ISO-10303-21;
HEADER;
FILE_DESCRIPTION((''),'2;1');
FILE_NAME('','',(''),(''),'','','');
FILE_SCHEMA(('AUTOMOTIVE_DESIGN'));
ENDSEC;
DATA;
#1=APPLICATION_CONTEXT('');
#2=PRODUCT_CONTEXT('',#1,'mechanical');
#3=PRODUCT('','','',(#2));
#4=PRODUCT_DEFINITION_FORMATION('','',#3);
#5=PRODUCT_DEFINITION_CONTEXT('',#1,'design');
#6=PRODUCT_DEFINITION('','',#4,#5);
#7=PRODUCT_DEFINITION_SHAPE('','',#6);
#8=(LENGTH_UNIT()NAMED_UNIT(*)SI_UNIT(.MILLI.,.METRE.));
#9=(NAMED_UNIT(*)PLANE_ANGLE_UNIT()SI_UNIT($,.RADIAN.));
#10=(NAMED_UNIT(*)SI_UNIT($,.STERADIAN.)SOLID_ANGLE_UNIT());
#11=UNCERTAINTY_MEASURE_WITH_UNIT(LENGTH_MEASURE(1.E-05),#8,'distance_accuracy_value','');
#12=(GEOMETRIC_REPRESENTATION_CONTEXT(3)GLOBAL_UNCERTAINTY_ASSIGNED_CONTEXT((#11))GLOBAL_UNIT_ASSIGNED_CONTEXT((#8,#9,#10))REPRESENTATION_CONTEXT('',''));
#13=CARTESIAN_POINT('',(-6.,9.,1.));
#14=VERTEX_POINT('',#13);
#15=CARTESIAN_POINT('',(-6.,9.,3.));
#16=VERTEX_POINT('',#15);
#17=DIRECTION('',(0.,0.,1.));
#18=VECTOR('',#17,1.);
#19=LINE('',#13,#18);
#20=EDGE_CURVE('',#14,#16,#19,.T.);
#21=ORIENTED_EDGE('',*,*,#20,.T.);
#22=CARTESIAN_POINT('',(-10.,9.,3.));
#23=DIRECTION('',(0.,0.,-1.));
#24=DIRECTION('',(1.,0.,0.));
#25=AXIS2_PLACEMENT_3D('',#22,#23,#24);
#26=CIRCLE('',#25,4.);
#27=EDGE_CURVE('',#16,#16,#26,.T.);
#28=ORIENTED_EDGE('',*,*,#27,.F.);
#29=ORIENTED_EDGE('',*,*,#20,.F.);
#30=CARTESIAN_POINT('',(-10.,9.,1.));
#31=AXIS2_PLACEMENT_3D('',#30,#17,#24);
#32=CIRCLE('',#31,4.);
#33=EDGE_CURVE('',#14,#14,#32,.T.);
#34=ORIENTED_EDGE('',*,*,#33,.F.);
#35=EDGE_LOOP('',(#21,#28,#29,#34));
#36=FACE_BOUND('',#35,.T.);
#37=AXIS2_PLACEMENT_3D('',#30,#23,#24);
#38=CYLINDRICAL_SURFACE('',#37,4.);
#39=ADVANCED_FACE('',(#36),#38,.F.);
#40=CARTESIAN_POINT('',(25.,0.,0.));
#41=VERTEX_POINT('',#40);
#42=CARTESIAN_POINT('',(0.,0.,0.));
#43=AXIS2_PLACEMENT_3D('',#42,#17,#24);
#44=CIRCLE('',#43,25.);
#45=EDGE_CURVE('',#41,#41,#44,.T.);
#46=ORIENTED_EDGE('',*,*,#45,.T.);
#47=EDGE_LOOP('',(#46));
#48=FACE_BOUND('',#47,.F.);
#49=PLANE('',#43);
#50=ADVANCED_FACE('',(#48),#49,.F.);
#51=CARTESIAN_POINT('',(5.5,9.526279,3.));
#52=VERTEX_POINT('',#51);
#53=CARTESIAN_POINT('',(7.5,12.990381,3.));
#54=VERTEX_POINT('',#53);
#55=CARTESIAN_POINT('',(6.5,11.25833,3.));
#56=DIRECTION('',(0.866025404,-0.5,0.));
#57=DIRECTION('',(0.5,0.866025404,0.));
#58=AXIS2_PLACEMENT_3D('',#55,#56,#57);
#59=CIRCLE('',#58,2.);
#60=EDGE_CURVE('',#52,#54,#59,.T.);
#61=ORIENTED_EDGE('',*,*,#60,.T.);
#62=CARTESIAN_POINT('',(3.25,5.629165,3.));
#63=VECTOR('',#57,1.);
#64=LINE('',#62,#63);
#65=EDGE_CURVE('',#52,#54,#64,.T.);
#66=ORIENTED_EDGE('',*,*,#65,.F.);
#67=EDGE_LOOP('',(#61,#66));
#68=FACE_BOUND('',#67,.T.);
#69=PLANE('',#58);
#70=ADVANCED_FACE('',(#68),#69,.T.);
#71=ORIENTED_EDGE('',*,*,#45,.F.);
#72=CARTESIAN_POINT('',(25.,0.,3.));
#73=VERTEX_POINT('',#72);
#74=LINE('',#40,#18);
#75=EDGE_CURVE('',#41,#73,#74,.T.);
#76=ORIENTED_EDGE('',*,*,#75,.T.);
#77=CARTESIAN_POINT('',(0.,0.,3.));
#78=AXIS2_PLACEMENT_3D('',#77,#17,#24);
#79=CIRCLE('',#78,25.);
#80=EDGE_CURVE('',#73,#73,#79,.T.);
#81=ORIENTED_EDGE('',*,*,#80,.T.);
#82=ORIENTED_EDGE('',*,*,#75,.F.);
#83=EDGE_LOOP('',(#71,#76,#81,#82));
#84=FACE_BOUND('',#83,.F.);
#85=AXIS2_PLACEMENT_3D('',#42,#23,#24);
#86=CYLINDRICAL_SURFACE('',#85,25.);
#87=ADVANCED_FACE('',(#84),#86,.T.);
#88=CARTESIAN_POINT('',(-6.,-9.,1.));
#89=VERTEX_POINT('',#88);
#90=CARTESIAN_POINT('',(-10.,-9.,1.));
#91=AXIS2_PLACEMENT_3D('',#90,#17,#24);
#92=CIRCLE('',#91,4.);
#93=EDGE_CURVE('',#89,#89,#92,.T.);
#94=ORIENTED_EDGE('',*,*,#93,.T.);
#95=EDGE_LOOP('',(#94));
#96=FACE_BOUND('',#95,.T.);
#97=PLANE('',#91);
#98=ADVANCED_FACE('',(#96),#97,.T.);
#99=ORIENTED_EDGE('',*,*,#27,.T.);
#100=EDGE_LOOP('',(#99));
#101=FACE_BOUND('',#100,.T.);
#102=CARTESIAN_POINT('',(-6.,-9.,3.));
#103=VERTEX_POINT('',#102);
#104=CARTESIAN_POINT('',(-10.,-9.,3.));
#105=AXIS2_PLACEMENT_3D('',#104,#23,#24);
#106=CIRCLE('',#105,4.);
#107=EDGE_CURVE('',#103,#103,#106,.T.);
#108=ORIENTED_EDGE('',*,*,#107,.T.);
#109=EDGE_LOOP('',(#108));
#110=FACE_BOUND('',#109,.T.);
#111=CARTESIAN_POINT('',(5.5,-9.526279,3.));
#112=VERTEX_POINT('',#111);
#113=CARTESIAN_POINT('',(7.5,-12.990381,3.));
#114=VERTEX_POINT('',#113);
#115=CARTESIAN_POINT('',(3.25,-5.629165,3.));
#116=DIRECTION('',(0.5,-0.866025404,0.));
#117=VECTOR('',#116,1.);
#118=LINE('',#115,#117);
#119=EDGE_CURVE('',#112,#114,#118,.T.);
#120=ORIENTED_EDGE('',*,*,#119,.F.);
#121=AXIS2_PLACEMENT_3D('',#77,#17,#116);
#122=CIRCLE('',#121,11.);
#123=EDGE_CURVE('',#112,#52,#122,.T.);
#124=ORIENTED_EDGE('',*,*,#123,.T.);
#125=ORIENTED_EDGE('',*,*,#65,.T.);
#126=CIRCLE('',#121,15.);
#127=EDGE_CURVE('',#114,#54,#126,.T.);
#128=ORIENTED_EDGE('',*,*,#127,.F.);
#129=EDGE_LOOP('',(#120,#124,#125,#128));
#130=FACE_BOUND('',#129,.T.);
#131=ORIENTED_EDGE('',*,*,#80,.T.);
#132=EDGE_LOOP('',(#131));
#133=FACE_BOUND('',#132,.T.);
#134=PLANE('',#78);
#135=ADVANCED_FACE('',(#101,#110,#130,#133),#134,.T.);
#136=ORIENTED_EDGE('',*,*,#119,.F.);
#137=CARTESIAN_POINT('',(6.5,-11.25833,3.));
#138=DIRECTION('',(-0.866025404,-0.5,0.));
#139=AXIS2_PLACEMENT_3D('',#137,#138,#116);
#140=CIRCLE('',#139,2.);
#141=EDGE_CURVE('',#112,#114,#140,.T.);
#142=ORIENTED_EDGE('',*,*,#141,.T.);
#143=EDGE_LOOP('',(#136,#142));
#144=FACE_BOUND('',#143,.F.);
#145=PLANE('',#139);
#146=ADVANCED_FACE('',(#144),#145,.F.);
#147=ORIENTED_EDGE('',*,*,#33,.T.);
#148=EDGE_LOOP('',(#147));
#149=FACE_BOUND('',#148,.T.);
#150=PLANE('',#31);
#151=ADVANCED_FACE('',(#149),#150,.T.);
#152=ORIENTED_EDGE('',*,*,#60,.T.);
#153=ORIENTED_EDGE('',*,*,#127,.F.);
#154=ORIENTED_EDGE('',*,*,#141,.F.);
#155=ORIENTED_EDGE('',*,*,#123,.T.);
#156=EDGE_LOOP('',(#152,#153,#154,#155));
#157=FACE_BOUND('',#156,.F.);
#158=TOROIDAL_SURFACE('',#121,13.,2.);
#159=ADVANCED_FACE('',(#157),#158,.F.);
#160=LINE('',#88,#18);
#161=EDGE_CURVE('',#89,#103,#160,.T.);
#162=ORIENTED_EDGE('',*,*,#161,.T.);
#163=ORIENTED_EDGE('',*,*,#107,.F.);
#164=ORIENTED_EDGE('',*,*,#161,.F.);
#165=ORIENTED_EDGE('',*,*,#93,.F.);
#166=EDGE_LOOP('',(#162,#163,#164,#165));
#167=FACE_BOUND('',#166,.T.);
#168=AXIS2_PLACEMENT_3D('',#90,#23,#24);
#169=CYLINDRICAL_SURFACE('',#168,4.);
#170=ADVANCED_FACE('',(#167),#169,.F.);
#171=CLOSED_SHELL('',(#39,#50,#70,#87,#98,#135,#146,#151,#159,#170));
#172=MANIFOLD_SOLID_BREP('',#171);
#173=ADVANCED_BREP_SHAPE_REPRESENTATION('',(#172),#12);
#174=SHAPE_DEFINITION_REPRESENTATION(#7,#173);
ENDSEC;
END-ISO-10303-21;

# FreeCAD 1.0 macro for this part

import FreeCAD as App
import Part
import Sketcher
Q = App.Units.Quantity

doc = App.newDocument("Part")
body = doc.addObject("PartDesign::Body", "Body")

sketch1 = doc.addObject("Sketcher::SketchObject", "Sketch")
body.addObject(sketch1)
sketch1.AttachmentSupport = (doc.XY_Plane, [""])
sketch1.MapMode = "FlatFace"
sketch1.AttachmentOffset = App.Placement(App.Vector(0, 0, 1), App.Rotation())
sketch1.addGeometry(Part.Circle(App.Vector(-10, -9, 0), App.Vector(0, 0, 1), 4), False)
sketch1.addConstraint([
    Sketcher.Constraint("Diameter", 0, Q("8 mm")),
    Sketcher.Constraint("DistanceX", 0, 3, -1, 1, Q("10 mm")),
    Sketcher.Constraint("DistanceY", 0, 3, -1, 1, Q("9 mm")),
])
pad1 = doc.addObject("PartDesign::Pad", "Pad")
body.addObject(pad1)
pad1.Profile = sketch1
pad1.Length = 3
body2 = doc.addObject("PartDesign::Body", "Body001")
body2.AllowCompound = True

sketch2 = doc.addObject("Sketcher::SketchObject", "Sketch001")
body2.addObject(sketch2)
sketch2.AttachmentSupport = (doc.getObject("XY_Plane001"), [""])
sketch2.MapMode = "FlatFace"
sketch2.AttachmentOffset = App.Placement(App.Vector(0, 0, 1), App.Rotation())
sketch2.addGeometry(Part.Circle(App.Vector(-10, 9, 0), App.Vector(0, 0, 1), 4), False)
sketch2.addConstraint([
    Sketcher.Constraint("Diameter", 0, Q("8 mm")),
    Sketcher.Constraint("DistanceX", 0, 3, -1, 1, Q("10 mm")),
    Sketcher.Constraint("DistanceY", -1, 1, 0, 3, Q("9 mm")),
])
pad2 = doc.addObject("PartDesign::Pad", "Pad001")
body2.addObject(pad2)
pad2.Profile = sketch2
pad2.Length = 3
doc.recompute()

boolean = doc.addObject("PartDesign::Boolean", "Boolean")
body2.addObject(boolean)
boolean.Type = "Fuse"
boolean.addObjects([body])
body3 = doc.addObject("PartDesign::Body", "Body002")

sketch3 = doc.addObject("Sketcher::SketchObject", "Sketch002")
body3.addObject(sketch3)
sketch3.AttachmentSupport = (doc.getObject("XZ_Plane002"), [""])
sketch3.MapMode = "FlatFace"
sketch3.addGeometry(Part.Circle(App.Vector(13, 0, 0), App.Vector(0, 0, 1), 2), False)
sketch3.addConstraint([
    Sketcher.Constraint("PointOnObject", 0, 3, -1),
    Sketcher.Constraint("Diameter", 0, Q("4 mm")),
    Sketcher.Constraint("DistanceX", -1, 1, 0, 3, Q("13 mm")),
])
revolution = doc.addObject("PartDesign::Revolution", "Revolution")
body3.addObject(revolution)
revolution.Profile = sketch3
revolution.ReferenceAxis = (sketch3, ["V_Axis"])
revolution.Angle = 120
body4 = doc.addObject("PartDesign::Body", "Body003")
doc.recompute()

body3.Placement = App.Placement(App.Vector(0, 0, 3), App.Rotation(App.Vector(0, 0, -1), 60))
boolean2 = doc.addObject("PartDesign::Boolean", "Boolean001")
body4.addObject(boolean2)
boolean2.Type = "Fuse"
boolean2.addObjects([body3])
body5 = doc.addObject("PartDesign::Body", "Body004")

sketch4 = doc.addObject("Sketcher::SketchObject", "Sketch003")
body5.addObject(sketch4)
sketch4.AttachmentSupport = (doc.getObject("XY_Plane004"), [""])
sketch4.MapMode = "FlatFace"
sketch4.addGeometry(Part.Circle(App.Vector(0, 0, 0), App.Vector(0, 0, 1), 25), False)
sketch4.addConstraint([
    Sketcher.Constraint("Coincident", 0, 3, -1, 1),
    Sketcher.Constraint("Diameter", 0, Q("50 mm")),
])
pad3 = doc.addObject("PartDesign::Pad", "Pad002")
body5.addObject(pad3)
pad3.Profile = sketch4
pad3.Length = 3
doc.recompute()

boolean3 = doc.addObject("PartDesign::Boolean", "Boolean002")
body5.addObject(boolean3)
boolean3.Type = "Cut"
boolean3.addObjects([body4])
doc.recompute()

boolean4 = doc.addObject("PartDesign::Boolean", "Boolean003")
body5.addObject(boolean4)
boolean4.Type = "Cut"
boolean4.addObjects([body2])

doc.recompute()
